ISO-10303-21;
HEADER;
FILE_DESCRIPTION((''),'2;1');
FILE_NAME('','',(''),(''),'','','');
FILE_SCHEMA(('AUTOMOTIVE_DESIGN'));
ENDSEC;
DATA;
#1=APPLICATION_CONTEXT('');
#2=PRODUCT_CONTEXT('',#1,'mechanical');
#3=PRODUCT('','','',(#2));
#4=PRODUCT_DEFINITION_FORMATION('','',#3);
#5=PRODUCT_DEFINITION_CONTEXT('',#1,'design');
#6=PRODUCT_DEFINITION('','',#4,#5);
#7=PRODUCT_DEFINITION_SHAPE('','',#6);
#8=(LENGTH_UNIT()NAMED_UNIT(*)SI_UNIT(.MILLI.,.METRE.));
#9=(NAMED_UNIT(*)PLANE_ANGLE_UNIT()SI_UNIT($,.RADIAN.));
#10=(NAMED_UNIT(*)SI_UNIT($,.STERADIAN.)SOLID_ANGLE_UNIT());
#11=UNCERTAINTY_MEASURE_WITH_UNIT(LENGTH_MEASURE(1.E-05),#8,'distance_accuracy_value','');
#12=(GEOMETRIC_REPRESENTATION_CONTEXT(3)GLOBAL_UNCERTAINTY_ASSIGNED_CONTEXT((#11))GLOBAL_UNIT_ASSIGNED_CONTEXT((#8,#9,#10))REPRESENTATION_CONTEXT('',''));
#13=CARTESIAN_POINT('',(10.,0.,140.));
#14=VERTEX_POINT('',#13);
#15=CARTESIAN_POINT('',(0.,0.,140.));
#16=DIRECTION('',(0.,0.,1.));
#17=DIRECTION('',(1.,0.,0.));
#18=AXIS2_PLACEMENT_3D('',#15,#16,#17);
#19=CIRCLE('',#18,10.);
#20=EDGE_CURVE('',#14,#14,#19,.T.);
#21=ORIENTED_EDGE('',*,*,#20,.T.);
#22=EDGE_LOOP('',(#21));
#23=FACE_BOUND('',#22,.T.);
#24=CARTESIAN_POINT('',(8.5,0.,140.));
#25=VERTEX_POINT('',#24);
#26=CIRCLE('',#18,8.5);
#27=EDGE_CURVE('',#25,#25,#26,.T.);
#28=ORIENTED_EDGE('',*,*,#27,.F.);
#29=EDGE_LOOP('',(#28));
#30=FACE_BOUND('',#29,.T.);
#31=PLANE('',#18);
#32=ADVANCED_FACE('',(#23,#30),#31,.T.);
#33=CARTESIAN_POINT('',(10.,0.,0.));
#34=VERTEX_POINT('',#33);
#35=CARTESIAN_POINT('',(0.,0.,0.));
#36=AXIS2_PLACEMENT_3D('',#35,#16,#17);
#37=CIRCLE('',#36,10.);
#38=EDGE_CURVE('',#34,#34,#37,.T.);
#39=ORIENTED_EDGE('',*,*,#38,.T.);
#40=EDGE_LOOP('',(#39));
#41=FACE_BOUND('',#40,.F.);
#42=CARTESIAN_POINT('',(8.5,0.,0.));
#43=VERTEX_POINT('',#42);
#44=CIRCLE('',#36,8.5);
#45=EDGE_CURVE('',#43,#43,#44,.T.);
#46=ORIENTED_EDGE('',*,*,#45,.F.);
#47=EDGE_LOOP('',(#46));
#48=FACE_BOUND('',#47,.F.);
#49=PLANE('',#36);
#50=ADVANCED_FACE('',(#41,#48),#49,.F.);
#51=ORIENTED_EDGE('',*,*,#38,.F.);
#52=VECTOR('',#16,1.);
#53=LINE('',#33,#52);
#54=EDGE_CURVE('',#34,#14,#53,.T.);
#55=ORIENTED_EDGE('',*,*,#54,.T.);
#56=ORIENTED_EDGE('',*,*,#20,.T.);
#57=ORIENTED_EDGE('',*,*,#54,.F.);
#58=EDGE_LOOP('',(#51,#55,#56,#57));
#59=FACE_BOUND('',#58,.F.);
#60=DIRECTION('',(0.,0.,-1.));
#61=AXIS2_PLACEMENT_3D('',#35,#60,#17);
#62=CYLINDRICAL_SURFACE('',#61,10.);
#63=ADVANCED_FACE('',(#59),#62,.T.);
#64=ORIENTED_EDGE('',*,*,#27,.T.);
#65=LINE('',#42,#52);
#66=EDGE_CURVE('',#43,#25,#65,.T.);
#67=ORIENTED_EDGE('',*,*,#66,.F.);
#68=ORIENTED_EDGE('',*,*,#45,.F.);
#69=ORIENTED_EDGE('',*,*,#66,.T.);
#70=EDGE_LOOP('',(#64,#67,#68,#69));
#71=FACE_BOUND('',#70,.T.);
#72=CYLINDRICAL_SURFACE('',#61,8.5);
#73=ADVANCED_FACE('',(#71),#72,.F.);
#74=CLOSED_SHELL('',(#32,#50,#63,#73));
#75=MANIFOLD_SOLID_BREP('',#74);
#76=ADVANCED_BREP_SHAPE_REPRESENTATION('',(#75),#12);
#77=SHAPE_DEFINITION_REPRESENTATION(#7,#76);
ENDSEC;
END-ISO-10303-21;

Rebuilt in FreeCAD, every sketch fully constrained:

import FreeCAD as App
import Part
import Sketcher
Q = App.Units.Quantity

doc = App.newDocument("Part")
body = doc.addObject("PartDesign::Body", "Body")

# Sketch on XY plane
sketch1 = doc.addObject("Sketcher::SketchObject", "Sketch")
body.addObject(sketch1)
sketch1.AttachmentSupport = (doc.XY_Plane, [""])
sketch1.MapMode = "FlatFace"
sketch1.addGeometry([
    Part.Circle(App.Vector(0, 0, 0), App.Vector(0, 0, 1), 10),
    Part.Circle(App.Vector(0, 0, 0), App.Vector(0, 0, 1), 8),
], False)
sketch1.addConstraint([
    Sketcher.Constraint("Coincident", 0, 3, -1, 1),
    Sketcher.Constraint("Coincident", 1, 3, -1, 1),
    Sketcher.Constraint("Diameter", 0, Q("20 mm")),
    Sketcher.Constraint("Diameter", 1, Q("17 mm")),
])
pad1 = doc.addObject("PartDesign::Pad", "Pad")
body.addObject(pad1)
pad1.Profile = sketch1
pad1.Length = 140

doc.recompute()
